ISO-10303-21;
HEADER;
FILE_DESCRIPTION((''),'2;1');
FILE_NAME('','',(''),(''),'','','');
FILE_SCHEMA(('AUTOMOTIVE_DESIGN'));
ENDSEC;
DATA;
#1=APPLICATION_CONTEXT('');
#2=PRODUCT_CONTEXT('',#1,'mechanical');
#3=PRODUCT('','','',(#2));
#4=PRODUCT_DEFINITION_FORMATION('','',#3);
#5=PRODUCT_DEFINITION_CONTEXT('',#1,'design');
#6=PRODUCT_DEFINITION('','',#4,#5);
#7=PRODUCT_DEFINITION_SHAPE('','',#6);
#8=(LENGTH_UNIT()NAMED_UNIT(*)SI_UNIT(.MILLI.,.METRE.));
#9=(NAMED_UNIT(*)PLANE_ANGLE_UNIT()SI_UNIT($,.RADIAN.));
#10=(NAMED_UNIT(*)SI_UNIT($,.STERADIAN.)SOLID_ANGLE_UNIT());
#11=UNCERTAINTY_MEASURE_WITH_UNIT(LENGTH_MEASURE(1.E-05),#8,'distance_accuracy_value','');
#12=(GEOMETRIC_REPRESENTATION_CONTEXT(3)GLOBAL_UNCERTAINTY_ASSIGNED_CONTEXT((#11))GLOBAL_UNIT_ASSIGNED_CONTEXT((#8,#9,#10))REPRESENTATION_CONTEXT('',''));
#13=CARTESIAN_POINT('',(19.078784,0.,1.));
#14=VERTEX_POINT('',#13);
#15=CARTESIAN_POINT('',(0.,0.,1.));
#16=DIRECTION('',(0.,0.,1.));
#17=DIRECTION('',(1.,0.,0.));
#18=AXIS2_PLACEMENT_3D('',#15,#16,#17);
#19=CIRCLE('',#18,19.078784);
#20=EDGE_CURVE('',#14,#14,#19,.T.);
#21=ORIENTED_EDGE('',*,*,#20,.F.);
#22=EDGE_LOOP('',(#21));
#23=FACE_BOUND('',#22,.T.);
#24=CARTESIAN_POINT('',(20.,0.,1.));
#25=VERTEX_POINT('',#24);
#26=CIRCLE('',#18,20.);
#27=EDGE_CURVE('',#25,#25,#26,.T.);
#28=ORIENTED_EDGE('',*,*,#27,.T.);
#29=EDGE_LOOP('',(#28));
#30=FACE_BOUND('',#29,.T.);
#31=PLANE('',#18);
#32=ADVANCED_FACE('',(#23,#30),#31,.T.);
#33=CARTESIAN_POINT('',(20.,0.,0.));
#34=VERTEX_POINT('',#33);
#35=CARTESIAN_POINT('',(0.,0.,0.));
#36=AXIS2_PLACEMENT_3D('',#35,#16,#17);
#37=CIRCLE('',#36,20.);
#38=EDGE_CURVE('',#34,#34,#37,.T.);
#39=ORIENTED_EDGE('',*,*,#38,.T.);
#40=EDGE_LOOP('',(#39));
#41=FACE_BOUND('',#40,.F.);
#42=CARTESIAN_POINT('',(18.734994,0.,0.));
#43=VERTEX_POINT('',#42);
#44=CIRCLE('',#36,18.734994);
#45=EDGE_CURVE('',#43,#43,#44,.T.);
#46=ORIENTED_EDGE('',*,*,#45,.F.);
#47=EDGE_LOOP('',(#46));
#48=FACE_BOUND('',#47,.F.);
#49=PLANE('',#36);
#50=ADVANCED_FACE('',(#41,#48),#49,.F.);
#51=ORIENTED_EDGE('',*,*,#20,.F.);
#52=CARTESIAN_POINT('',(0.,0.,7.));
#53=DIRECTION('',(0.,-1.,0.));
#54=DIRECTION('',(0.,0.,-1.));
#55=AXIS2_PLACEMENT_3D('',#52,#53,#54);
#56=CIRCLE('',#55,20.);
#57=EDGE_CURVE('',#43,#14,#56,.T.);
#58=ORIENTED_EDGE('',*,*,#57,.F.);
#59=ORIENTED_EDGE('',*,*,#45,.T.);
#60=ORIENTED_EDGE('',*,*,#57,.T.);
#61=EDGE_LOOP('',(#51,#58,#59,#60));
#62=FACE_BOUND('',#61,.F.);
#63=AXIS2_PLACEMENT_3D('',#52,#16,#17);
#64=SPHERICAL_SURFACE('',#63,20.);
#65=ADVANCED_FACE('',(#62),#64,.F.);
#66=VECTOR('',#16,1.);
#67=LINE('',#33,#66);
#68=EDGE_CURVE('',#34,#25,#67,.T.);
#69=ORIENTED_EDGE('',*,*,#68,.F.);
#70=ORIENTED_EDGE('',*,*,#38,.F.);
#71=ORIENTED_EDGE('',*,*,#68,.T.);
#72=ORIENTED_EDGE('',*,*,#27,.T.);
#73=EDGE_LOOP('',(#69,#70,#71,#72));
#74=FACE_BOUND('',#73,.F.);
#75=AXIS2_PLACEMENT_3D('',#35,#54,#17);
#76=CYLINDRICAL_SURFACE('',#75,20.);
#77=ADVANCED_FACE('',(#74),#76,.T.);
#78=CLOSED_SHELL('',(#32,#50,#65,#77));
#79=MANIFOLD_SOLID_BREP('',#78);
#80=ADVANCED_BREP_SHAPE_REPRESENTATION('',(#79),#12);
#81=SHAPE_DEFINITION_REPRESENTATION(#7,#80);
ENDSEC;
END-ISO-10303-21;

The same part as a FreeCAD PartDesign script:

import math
import FreeCAD as App
import Part
import Sketcher

V = App.Vector

doc = App.newDocument("Part")
params = doc.addObject("Spreadsheet::Sheet", "Params")
for row, (alias, value) in enumerate([
    ("sketch1_radius", "20 mm"),
    ("revolution_angle", "360 deg"),
    ("sketch2_diameter", "40 mm"),
    ("pad1_length", "1 mm"),
], start=1):
    params.set(f"A{row}", alias)
    params.set(f"B{row}", "=" + value)
    params.setAlias(f"B{row}", alias)

body = doc.addObject("PartDesign::Body", "Body")

# Sketch on XZ plane
sketch1 = doc.addObject("Sketcher::SketchObject", "Sketch")
body.addObject(sketch1)
sketch1.AttachmentSupport = (doc.XZ_Plane, [""])
sketch1.MapMode = "FlatFace"
sketch1.addGeometry(Part.ArcOfCircle(Part.Circle(V(0, 7, 0), V(0, 0, 1), 20), math.radians(-90), math.radians(90)), False)
sketch1.addGeometry(Part.LineSegment(V(0, 27, 0), V(0, -13, 0)), False)
sketch1.addConstraint(Sketcher.Constraint("Coincident", 0, 1, 1, 2))
sketch1.addConstraint(Sketcher.Constraint("Coincident", 1, 1, 0, 2))
sketch1.addConstraint(Sketcher.Constraint("Vertical", 1))
sketch1.addConstraint(Sketcher.Constraint("PointOnObject", 0, 3, -2))
sketch1.addConstraint(Sketcher.Constraint("PointOnObject", 0, 1, -2))
sketch1.addConstraint(Sketcher.Constraint("Radius", 0, 20.0))
sketch1.addConstraint(Sketcher.Constraint("DistanceY", -1, 1, 0, 3, 7.0))
sketch1.setExpression("Constraints[5]", "Params.sketch1_radius")
revolution = doc.addObject("PartDesign::Revolution", "Revolution")
body.addObject(revolution)
revolution.Profile = sketch1
revolution.ReferenceAxis = (sketch1, ["V_Axis"])
revolution.setExpression("Angle", "Params.revolution_angle")
body2 = doc.addObject("PartDesign::Body", "Body001")

# Sketch on XY plane
sketch2 = doc.addObject("Sketcher::SketchObject", "Sketch001")
body2.addObject(sketch2)
sketch2.AttachmentSupport = (doc.getObject("XY_Plane001"), [""])
sketch2.MapMode = "FlatFace"
sketch2.addGeometry(Part.Circle(V(0, 0, 0), V(0, 0, 1), 20), False)
sketch2.addConstraint(Sketcher.Constraint("Coincident", 0, 3, -1, 1))
sketch2.addConstraint(Sketcher.Constraint("Diameter", 0, 40.0))
sketch2.setExpression("Constraints[1]", "Params.sketch2_diameter")
pad1 = doc.addObject("PartDesign::Pad", "Pad")
body2.addObject(pad1)
pad1.Profile = sketch2
pad1.setExpression("Length", "Params.pad1_length")
doc.recompute()

boolean = doc.addObject("PartDesign::Boolean", "Boolean")
body2.addObject(boolean)
boolean.Type = "Cut"
boolean.addObjects([body])

doc.recompute()
